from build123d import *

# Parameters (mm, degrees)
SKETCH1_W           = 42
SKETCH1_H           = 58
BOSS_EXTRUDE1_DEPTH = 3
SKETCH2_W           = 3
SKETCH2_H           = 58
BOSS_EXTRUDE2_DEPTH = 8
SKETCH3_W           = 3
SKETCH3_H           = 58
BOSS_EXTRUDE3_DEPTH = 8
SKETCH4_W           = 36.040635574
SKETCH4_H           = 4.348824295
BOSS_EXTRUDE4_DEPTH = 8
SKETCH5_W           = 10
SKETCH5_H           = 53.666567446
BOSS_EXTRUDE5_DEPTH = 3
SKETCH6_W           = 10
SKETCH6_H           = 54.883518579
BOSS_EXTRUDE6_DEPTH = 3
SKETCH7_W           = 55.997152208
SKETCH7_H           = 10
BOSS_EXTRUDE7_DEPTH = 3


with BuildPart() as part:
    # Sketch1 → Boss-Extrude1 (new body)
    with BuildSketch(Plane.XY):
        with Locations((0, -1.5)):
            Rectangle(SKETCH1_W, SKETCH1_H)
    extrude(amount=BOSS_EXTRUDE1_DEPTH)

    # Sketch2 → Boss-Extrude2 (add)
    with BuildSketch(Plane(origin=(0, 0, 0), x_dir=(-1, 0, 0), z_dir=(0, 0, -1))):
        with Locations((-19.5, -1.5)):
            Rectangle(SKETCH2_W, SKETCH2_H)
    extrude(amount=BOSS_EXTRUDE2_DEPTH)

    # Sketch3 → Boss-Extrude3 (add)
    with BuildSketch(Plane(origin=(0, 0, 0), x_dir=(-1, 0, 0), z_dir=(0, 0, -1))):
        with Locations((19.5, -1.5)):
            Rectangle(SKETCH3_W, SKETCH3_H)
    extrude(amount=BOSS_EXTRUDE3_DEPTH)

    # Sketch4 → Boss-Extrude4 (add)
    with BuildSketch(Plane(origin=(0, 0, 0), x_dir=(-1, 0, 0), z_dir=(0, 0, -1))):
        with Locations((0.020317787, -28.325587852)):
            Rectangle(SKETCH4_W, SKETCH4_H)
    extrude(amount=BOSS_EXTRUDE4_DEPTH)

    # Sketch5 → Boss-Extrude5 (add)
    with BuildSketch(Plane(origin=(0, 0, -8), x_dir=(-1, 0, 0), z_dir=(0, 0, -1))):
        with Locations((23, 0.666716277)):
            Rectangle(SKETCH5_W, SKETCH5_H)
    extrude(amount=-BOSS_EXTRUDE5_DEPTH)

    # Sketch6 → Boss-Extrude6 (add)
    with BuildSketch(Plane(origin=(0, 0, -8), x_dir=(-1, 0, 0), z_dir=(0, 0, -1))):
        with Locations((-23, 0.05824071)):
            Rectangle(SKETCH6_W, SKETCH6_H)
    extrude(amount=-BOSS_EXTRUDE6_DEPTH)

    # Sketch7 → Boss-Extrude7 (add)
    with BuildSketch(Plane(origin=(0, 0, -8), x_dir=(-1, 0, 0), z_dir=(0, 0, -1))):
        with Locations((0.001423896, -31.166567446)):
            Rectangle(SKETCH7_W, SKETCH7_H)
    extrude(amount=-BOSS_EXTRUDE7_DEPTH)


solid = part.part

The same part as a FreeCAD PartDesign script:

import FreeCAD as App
import Part
import Sketcher

V = App.Vector

doc = App.newDocument("Part")
body = doc.addObject("PartDesign::Body", "Body")

sketch1 = doc.addObject("Sketcher::SketchObject", "Sketch")
body.addObject(sketch1)
sketch1.AttachmentSupport = (doc.XY_Plane, [""])
sketch1.MapMode = "FlatFace"
sketch1.addGeometry(Part.LineSegment(V(-21, 28, 0), V(-21, -30, 0)), False)
sketch1.addGeometry(Part.LineSegment(V(-21, -30, 0), V(21, -30, 0)), False)
sketch1.addGeometry(Part.LineSegment(V(21, -30, 0), V(21, 28, 0)), False)
sketch1.addGeometry(Part.LineSegment(V(21, 28, 0), V(-21, 28, 0)), False)
sketch1.addConstraint(Sketcher.Constraint("Coincident", 0, 2, 1, 1))
sketch1.addConstraint(Sketcher.Constraint("Coincident", 1, 2, 2, 1))
sketch1.addConstraint(Sketcher.Constraint("Coincident", 2, 2, 3, 1))
sketch1.addConstraint(Sketcher.Constraint("Coincident", 3, 2, 0, 1))
sketch1.addConstraint(Sketcher.Constraint("Vertical", 0))
sketch1.addConstraint(Sketcher.Constraint("Horizontal", 1))
sketch1.addConstraint(Sketcher.Constraint("Vertical", 2))
sketch1.addConstraint(Sketcher.Constraint("Horizontal", 3))
sketch1.addConstraint(Sketcher.Constraint("DistanceX", 1, 1, 1, 2, 42.0))
sketch1.addConstraint(Sketcher.Constraint("DistanceY", 0, 2, 0, 1, 58.0))
sketch1.addConstraint(Sketcher.Constraint("DistanceX", 0, 2, -1, 1, 21.0))
sketch1.addConstraint(Sketcher.Constraint("DistanceY", 0, 2, -1, 1, 30.5))
pad1 = doc.addObject("PartDesign::Pad", "Pad")
body.addObject(pad1)
pad1.Profile = sketch1
pad1.Length = 3

sketch2 = doc.addObject("Sketcher::SketchObject", "Sketch001")
body.addObject(sketch2)
sketch2.AttachmentSupport = (doc.XY_Plane, [""])
sketch2.MapMode = "FlatFace"
sketch2.addGeometry(Part.LineSegment(V(21, 27.5, 0), V(21, -30.5, 0)), False)
sketch2.addGeometry(Part.LineSegment(V(21, -30.5, 0), V(18, -30.5, 0)), False)
sketch2.addGeometry(Part.LineSegment(V(18, -30.5, 0), V(18, 27.5, 0)), False)
sketch2.addGeometry(Part.LineSegment(V(18, 27.5, 0), V(21, 27.5, 0)), False)
sketch2.addConstraint(Sketcher.Constraint("Coincident", 0, 2, 1, 1))
sketch2.addConstraint(Sketcher.Constraint("Coincident", 1, 2, 2, 1))
sketch2.addConstraint(Sketcher.Constraint("Coincident", 2, 2, 3, 1))
sketch2.addConstraint(Sketcher.Constraint("Coincident", 3, 2, 0, 1))
sketch2.addConstraint(Sketcher.Constraint("Vertical", 0))
sketch2.addConstraint(Sketcher.Constraint("Horizontal", 1))
sketch2.addConstraint(Sketcher.Constraint("Vertical", 2))
sketch2.addConstraint(Sketcher.Constraint("Horizontal", 3))
sketch2.addConstraint(Sketcher.Constraint("DistanceX", 1, 2, 1, 1, 3.0))
sketch2.addConstraint(Sketcher.Constraint("DistanceY", 0, 2, 0, 1, 58.0))
sketch2.addConstraint(Sketcher.Constraint("DistanceX", -1, 1, 0, 2, 21.0))
sketch2.addConstraint(Sketcher.Constraint("DistanceY", 0, 2, -1, 1, 30.5))
pad2 = doc.addObject("PartDesign::Pad", "Pad001")
body.addObject(pad2)
pad2.Profile = sketch2
pad2.Length = 8
pad2.Reversed = True

sketch3 = doc.addObject("Sketcher::SketchObject", "Sketch002")
body.addObject(sketch3)
sketch3.AttachmentSupport = (doc.XY_Plane, [""])
sketch3.MapMode = "FlatFace"
sketch3.addGeometry(Part.LineSegment(V(-18, 27.5, 0), V(-18, -30.5, 0)), False)
sketch3.addGeometry(Part.LineSegment(V(-18, -30.5, 0), V(-21, -30.5, 0)), False)
sketch3.addGeometry(Part.LineSegment(V(-21, -30.5, 0), V(-21, 27.5, 0)), False)
sketch3.addGeometry(Part.LineSegment(V(-21, 27.5, 0), V(-18, 27.5, 0)), False)
sketch3.addConstraint(Sketcher.Constraint("Coincident", 0, 2, 1, 1))
sketch3.addConstraint(Sketcher.Constraint("Coincident", 1, 2, 2, 1))
sketch3.addConstraint(Sketcher.Constraint("Coincident", 2, 2, 3, 1))
sketch3.addConstraint(Sketcher.Constraint("Coincident", 3, 2, 0, 1))
sketch3.addConstraint(Sketcher.Constraint("Vertical", 0))
sketch3.addConstraint(Sketcher.Constraint("Horizontal", 1))
sketch3.addConstraint(Sketcher.Constraint("Vertical", 2))
sketch3.addConstraint(Sketcher.Constraint("Horizontal", 3))
sketch3.addConstraint(Sketcher.Constraint("DistanceX", 1, 2, 1, 1, 3.0))
sketch3.addConstraint(Sketcher.Constraint("DistanceY", 0, 2, 0, 1, 58.0))
sketch3.addConstraint(Sketcher.Constraint("DistanceX", 0, 2, -1, 1, 18.0))
sketch3.addConstraint(Sketcher.Constraint("DistanceY", 0, 2, -1, 1, 30.5))
pad3 = doc.addObject("PartDesign::Pad", "Pad002")
body.addObject(pad3)
pad3.Profile = sketch3
pad3.Length = 8
pad3.Reversed = True

sketch4 = doc.addObject("Sketcher::SketchObject", "Sketch003")
body.addObject(sketch4)
sketch4.AttachmentSupport = (doc.XY_Plane, [""])
sketch4.MapMode = "FlatFace"
sketch4.addGeometry(Part.LineSegment(V(18, -26.2, 0), V(18, -30.5, 0)), False)
sketch4.addGeometry(Part.LineSegment(V(18, -30.5, 0), V(-18, -30.5, 0)), False)
sketch4.addGeometry(Part.LineSegment(V(-18, -30.5, 0), V(-18, -26.2, 0)), False)
sketch4.addGeometry(Part.LineSegment(V(-18, -26.2, 0), V(18, -26.2, 0)), False)
sketch4.addConstraint(Sketcher.Constraint("Coincident", 0, 2, 1, 1))
sketch4.addConstraint(Sketcher.Constraint("Coincident", 1, 2, 2, 1))
sketch4.addConstraint(Sketcher.Constraint("Coincident", 2, 2, 3, 1))
sketch4.addConstraint(Sketcher.Constraint("Coincident", 3, 2, 0, 1))
sketch4.addConstraint(Sketcher.Constraint("Vertical", 0))
sketch4.addConstraint(Sketcher.Constraint("Horizontal", 1))
sketch4.addConstraint(Sketcher.Constraint("Vertical", 2))
sketch4.addConstraint(Sketcher.Constraint("Horizontal", 3))
sketch4.addConstraint(Sketcher.Constraint("DistanceX", -1, 1, 0, 2, 18.0))
sketch4.addConstraint(Sketcher.Constraint("DistanceY", 0, 2, -1, 1, 30.5))
sketch4.addConstraint(Sketcher.Constraint("DistanceX", 1, 2, 1, 1, 36.040636))
sketch4.addConstraint(Sketcher.Constraint("DistanceY", 0, 2, 0, 1, 4.348824))
pad4 = doc.addObject("PartDesign::Pad", "Pad003")
body.addObject(pad4)
pad4.Profile = sketch4
pad4.Length = 8
pad4.Reversed = True

sketch5 = doc.addObject("Sketcher::SketchObject", "Sketch004")
body.addObject(sketch5)
sketch5.AttachmentSupport = (doc.XY_Plane, [""])
sketch5.MapMode = "FlatFace"
sketch5.AttachmentOffset = App.Placement(V(0, 0, -8), App.Rotation())
sketch5.addGeometry(Part.LineSegment(V(-18, 28, 0), V(-18, -26, 0)), False)
sketch5.addGeometry(Part.LineSegment(V(-18, -26, 0), V(-28, -26, 0)), False)
sketch5.addGeometry(Part.LineSegment(V(-28, -26, 0), V(-28, 28, 0)), False)
sketch5.addGeometry(Part.LineSegment(V(-28, 28, 0), V(-18, 28, 0)), False)
sketch5.addConstraint(Sketcher.Constraint("Coincident", 0, 2, 1, 1))
sketch5.addConstraint(Sketcher.Constraint("Coincident", 1, 2, 2, 1))
sketch5.addConstraint(Sketcher.Constraint("Coincident", 2, 2, 3, 1))
sketch5.addConstraint(Sketcher.Constraint("Coincident", 3, 2, 0, 1))
sketch5.addConstraint(Sketcher.Constraint("Vertical", 0))
sketch5.addConstraint(Sketcher.Constraint("Horizontal", 1))
sketch5.addConstraint(Sketcher.Constraint("Vertical", 2))
sketch5.addConstraint(Sketcher.Constraint("Horizontal", 3))
sketch5.addConstraint(Sketcher.Constraint("DistanceX", 1, 2, 1, 1, 10.0))
sketch5.addConstraint(Sketcher.Constraint("DistanceX", 0, 2, -1, 1, 18.0))
sketch5.addConstraint(Sketcher.Constraint("DistanceY", -1, 1, 2, 2, 27.5))
sketch5.addConstraint(Sketcher.Constraint("DistanceY", 0, 2, 0, 1, 53.666567))
pad5 = doc.addObject("PartDesign::Pad", "Pad004")
body.addObject(pad5)
pad5.Profile = sketch5
pad5.Length = 3

sketch6 = doc.addObject("Sketcher::SketchObject", "Sketch005")
body.addObject(sketch6)
sketch6.AttachmentSupport = (doc.XY_Plane, [""])
sketch6.MapMode = "FlatFace"
sketch6.AttachmentOffset = App.Placement(V(0, 0, -8), App.Rotation())
sketch6.addGeometry(Part.LineSegment(V(28, 27, 0), V(28, -27, 0)), False)
sketch6.addGeometry(Part.LineSegment(V(28, -27, 0), V(18, -27, 0)), False)
sketch6.addGeometry(Part.LineSegment(V(18, -27, 0), V(18, 27, 0)), False)
sketch6.addGeometry(Part.LineSegment(V(18, 27, 0), V(28, 27, 0)), False)
sketch6.addConstraint(Sketcher.Constraint("Coincident", 0, 2, 1, 1))
sketch6.addConstraint(Sketcher.Constraint("Coincident", 1, 2, 2, 1))
sketch6.addConstraint(Sketcher.Constraint("Coincident", 2, 2, 3, 1))
sketch6.addConstraint(Sketcher.Constraint("Coincident", 3, 2, 0, 1))
sketch6.addConstraint(Sketcher.Constraint("Vertical", 0))
sketch6.addConstraint(Sketcher.Constraint("Horizontal", 1))
sketch6.addConstraint(Sketcher.Constraint("Vertical", 2))
sketch6.addConstraint(Sketcher.Constraint("Horizontal", 3))
sketch6.addConstraint(Sketcher.Constraint("DistanceX", 1, 2, 1, 1, 10.0))
sketch6.addConstraint(Sketcher.Constraint("DistanceX", -1, 1, 0, 2, 28.0))
sketch6.addConstraint(Sketcher.Constraint("DistanceY", -1, 1, 2, 2, 27.5))
sketch6.addConstraint(Sketcher.Constraint("DistanceY", 0, 2, 0, 1, 54.883519))
pad6 = doc.addObject("PartDesign::Pad", "Pad005")
body.addObject(pad6)
pad6.Profile = sketch6
pad6.Length = 3

sketch7 = doc.addObject("Sketcher::SketchObject", "Sketch006")
body.addObject(sketch7)
sketch7.AttachmentSupport = (doc.XY_Plane, [""])
sketch7.MapMode = "FlatFace"
sketch7.AttachmentOffset = App.Placement(V(0, 0, -8), App.Rotation())
sketch7.addGeometry(Part.LineSegment(V(28, -26, 0), V(28, -36, 0)), False)
sketch7.addGeometry(Part.LineSegment(V(28, -36, 0), V(-28, -36, 0)), False)
sketch7.addGeometry(Part.LineSegment(V(-28, -36, 0), V(-28, -26, 0)), False)
sketch7.addGeometry(Part.LineSegment(V(-28, -26, 0), V(28, -26, 0)), False)
sketch7.addConstraint(Sketcher.Constraint("Coincident", 0, 2, 1, 1))
sketch7.addConstraint(Sketcher.Constraint("Coincident", 1, 2, 2, 1))
sketch7.addConstraint(Sketcher.Constraint("Coincident", 2, 2, 3, 1))
sketch7.addConstraint(Sketcher.Constraint("Coincident", 3, 2, 0, 1))
sketch7.addConstraint(Sketcher.Constraint("Vertical", 0))
sketch7.addConstraint(Sketcher.Constraint("Horizontal", 1))
sketch7.addConstraint(Sketcher.Constraint("Vertical", 2))
sketch7.addConstraint(Sketcher.Constraint("Horizontal", 3))
sketch7.addConstraint(Sketcher.Constraint("DistanceY", 0, 2, 0, 1, 10.0))
sketch7.addConstraint(Sketcher.Constraint("DistanceX", 1, 2, -1, 1, 28.0))
sketch7.addConstraint(Sketcher.Constraint("DistanceX", 1, 2, 1, 1, 55.997152))
sketch7.addConstraint(Sketcher.Constraint("DistanceY", 0, 2, -1, 1, 36.166567))
pad7 = doc.addObject("PartDesign::Pad", "Pad006")
body.addObject(pad7)
pad7.Profile = sketch7
pad7.Length = 3

doc.recompute()
